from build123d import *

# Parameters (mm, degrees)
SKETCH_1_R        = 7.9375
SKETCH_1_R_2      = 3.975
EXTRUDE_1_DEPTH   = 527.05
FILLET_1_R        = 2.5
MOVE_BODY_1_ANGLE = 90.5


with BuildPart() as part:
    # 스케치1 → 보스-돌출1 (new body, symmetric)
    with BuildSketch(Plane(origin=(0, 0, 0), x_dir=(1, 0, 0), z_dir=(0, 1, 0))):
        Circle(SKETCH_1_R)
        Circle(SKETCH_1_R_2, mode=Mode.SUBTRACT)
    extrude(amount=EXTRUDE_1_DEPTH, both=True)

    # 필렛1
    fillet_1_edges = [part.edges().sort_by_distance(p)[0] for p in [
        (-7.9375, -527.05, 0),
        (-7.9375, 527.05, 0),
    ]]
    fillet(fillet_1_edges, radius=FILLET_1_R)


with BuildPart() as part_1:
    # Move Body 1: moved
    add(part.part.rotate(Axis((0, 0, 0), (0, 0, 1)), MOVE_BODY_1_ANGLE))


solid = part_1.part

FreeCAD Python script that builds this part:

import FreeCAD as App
import Part
import Sketcher

V = App.Vector
Q = App.Units.Quantity


def edges_at(feature, points):
    """Names of the edges that pass closest to the given points."""
    edges = feature.Shape.Edges
    near = lambda p: min(range(len(edges)), key=lambda i: edges[i].distToShape(Part.Vertex(*p))[0])
    return sorted({f"Edge{near(p) + 1}" for p in points})

doc = App.newDocument("Part")
params = doc.addObject("Spreadsheet::Sheet", "Params")
for row, (alias, value) in enumerate([
    ("sketch1_diameter", "0.625 in"),
    ("pad1_length", "41.5 in"),
    ("fillet_radius", "2.5 mm"),
], start=1):
    params.set(f"A{row}", alias)
    params.set(f"B{row}", "=" + value)
    params.setAlias(f"B{row}", alias)

body = doc.addObject("PartDesign::Body", "Body")

# Sketch on XZ plane
sketch1 = body.newObject("Sketcher::SketchObject", "Sketch")
sketch1.AttachmentSupport = (doc.getObject("XZ_Plane"), [""])
sketch1.MapMode = "FlatFace"
sketch1.addGeometry(Part.Circle(V(0, 0, 0), V(0, 0, 1), 7.9), False)
sketch1.addGeometry(Part.Circle(V(0, 0, 0), V(0, 0, 1), 4), False)
sketch1.addConstraint(Sketcher.Constraint("Coincident", 0, 3, -1, 1))
sketch1.addConstraint(Sketcher.Constraint("Coincident", 1, 3, -1, 1))
sketch1.addConstraint(Sketcher.Constraint("Diameter", 0, Q("0.625 in")))
sketch1.addConstraint(Sketcher.Constraint("Diameter", 1, 7.95))
sketch1.setExpression("Constraints[2]", "Params.sketch1_diameter")
pad1 = body.newObject("PartDesign::Pad", "Pad")
pad1.Profile = sketch1
pad1.setExpression("Length", "Params.pad1_length")
pad1.Midplane = True
doc.recompute()

fillet = body.newObject("PartDesign::Fillet", "Fillet")
fillet.Base = (pad1, edges_at(pad1, [(-7.938, -527.05, 0), (-7.938, 527.05, 0)]))
fillet.setExpression("Radius", "Params.fillet_radius")
body2 = doc.addObject("PartDesign::Body", "Body001")
doc.recompute()

body.Placement = App.Placement(V(0, 0, 0), App.Rotation(V(0, 0, 1), 90.5))
boolean = body2.newObject("PartDesign::Boolean", "Boolean")
boolean.Type = "Fuse"
boolean.addObjects([body])

doc.recompute()
